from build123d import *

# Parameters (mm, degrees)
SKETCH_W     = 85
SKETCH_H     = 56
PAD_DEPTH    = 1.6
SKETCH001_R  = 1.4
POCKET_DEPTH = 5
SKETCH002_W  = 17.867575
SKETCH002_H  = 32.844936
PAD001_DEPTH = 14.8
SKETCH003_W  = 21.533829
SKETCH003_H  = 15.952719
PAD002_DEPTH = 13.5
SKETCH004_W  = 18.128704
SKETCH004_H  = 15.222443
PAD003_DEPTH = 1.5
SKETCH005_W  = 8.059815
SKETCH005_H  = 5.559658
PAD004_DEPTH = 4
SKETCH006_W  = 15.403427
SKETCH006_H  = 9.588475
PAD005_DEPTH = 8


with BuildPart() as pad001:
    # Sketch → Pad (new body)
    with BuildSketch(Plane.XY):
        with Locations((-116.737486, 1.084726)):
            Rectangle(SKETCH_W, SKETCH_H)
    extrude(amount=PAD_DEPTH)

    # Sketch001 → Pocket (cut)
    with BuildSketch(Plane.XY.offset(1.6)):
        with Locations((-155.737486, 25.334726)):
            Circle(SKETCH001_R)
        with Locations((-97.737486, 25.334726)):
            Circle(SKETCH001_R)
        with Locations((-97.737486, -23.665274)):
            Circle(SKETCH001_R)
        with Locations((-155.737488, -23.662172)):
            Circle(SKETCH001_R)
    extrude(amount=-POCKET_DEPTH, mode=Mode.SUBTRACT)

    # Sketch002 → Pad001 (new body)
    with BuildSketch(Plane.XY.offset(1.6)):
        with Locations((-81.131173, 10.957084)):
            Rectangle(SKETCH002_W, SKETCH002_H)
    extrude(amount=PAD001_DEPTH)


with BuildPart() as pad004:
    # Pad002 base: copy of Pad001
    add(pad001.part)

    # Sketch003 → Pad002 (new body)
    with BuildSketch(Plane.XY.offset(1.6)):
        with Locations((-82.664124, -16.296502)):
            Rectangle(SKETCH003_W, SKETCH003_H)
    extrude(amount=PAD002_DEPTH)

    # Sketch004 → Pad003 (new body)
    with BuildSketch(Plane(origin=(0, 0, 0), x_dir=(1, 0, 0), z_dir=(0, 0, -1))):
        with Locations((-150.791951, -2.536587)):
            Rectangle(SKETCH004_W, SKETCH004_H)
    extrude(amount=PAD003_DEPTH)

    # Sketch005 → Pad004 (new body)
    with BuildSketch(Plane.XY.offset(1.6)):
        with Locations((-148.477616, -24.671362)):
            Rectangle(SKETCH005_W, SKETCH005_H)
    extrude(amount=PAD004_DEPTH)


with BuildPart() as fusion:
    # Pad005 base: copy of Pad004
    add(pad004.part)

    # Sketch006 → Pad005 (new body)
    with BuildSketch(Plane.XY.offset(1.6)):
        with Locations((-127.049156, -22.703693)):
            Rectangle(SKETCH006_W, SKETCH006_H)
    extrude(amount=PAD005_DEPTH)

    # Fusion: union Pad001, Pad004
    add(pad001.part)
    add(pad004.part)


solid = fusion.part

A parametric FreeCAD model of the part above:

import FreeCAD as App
import Part
import Sketcher


def add_polygon(sketch, points):
    """Adds a closed chain of lines whose ends are joined by coincident constraints."""
    first, n = sketch.GeometryCount, len(points)
    for a, b in zip(points, points[1:] + points[:1]):
        sketch.addGeometry(Part.LineSegment(App.Vector(*a, 0), App.Vector(*b, 0)), False)
    for i in range(n):
        sketch.addConstraint(Sketcher.Constraint("Coincident", first + i, 2, first + (i + 1) % n, 1))

doc = App.newDocument("Part")
body = doc.addObject("PartDesign::Body", "Body")

# Sketch on XY plane
sketch1 = body.newObject("Sketcher::SketchObject", "Sketch")
sketch1.AttachmentSupport = (doc.getObject("XY_Plane"), [""])
sketch1.MapMode = "FlatFace"
add_polygon(sketch1, [(-159, 29), (-159, -27), (-74, -27), (-74, 29)])  # lines 0-3
sketch1.addConstraint([
    Sketcher.Constraint("Vertical", 0),
    Sketcher.Constraint("Horizontal", 1),
    Sketcher.Constraint("Vertical", 2),
    Sketcher.Constraint("Horizontal", 3),
    Sketcher.Constraint("DistanceX", 1, 1, 1, 2, 85.0),
    Sketcher.Constraint("DistanceY", 0, 2, 0, 1, 56.0),
    Sketcher.Constraint("DistanceX", 0, 2, -1, 1, 159.237486),
    Sketcher.Constraint("DistanceY", 0, 2, -1, 1, 26.915274),
])
pad1 = body.newObject("PartDesign::Pad", "Pad")
pad1.Profile = sketch1
pad1.Length = 1.6

# Sketch on XY plane
sketch2 = body.newObject("Sketcher::SketchObject", "Sketch001")
sketch2.AttachmentSupport = (doc.getObject("XY_Plane"), [""])
sketch2.MapMode = "FlatFace"
sketch2.AttachmentOffset = App.Placement(App.Vector(0, 0, 1.6), App.Rotation())
sketch2.addGeometry([
    Part.Circle(App.Vector(-155.7, 25.3, 0), App.Vector(0, 0, 1), 1.4),
    Part.Circle(App.Vector(-97.7, 25.3, 0), App.Vector(0, 0, 1), 1.4),
    Part.Circle(App.Vector(-97.7, -23.7, 0), App.Vector(0, 0, 1), 1.4),
    Part.Circle(App.Vector(-155.7, -23.7, 0), App.Vector(0, 0, 1), 1.4),
], False)
sketch2.addConstraint([
    Sketcher.Constraint("Equal", 0, 1),
    Sketcher.Constraint("Equal", 1, 2),
    Sketcher.Constraint("Equal", 2, 3),
    Sketcher.Constraint("Horizontal", 0, 3, 1, 3),
    Sketcher.Constraint("Vertical", 1, 3, 2, 3),
    Sketcher.Constraint("Diameter", 0, 2.8),
    Sketcher.Constraint("DistanceX", 0, 3, 1, 3, 58.0),
    Sketcher.Constraint("DistanceY", 2, 3, 1, 3, 49.0),
    Sketcher.Constraint("DistanceY", 3, 3, 0, 3, 48.996898),
    Sketcher.Constraint("DistanceX", 3, 3, -1, 1, 155.737488),
    Sketcher.Constraint("DistanceX", 0, 3, -1, 1, 155.737486),
    Sketcher.Constraint("DistanceY", -1, 1, 0, 3, 25.334726),
])
pocket1 = body.newObject("PartDesign::Pocket", "Pocket")
pocket1.Profile = sketch2
pocket1.Length = 5

# Sketch on XY plane
sketch3 = body.newObject("Sketcher::SketchObject", "Sketch002")
sketch3.AttachmentSupport = (doc.getObject("XY_Plane"), [""])
sketch3.MapMode = "FlatFace"
sketch3.AttachmentOffset = App.Placement(App.Vector(0, 0, 1.6), App.Rotation())
add_polygon(sketch3, [(-90, 27), (-90, -5), (-72, -5), (-72, 27)])  # lines 0-3
sketch3.addConstraint([
    Sketcher.Constraint("Vertical", 0),
    Sketcher.Constraint("Horizontal", 1),
    Sketcher.Constraint("Vertical", 2),
    Sketcher.Constraint("Horizontal", 3),
    Sketcher.Constraint("DistanceX", 1, 1, 1, 2, 17.867575),
    Sketcher.Constraint("DistanceY", 0, 2, 0, 1, 32.844936),
    Sketcher.Constraint("DistanceX", 0, 2, -1, 1, 90.06496),
    Sketcher.Constraint("DistanceY", 0, 2, -1, 1, 5.465384),
])
pad2 = body.newObject("PartDesign::Pad", "Pad001")
pad2.Profile = sketch3
pad2.Length = 14.8
body2 = doc.addObject("PartDesign::Body", "Body001")
doc.recompute()

body2.BaseFeature = body
doc.recompute()

# Sketch on XY plane
sketch4 = body2.newObject("Sketcher::SketchObject", "Sketch003")
sketch4.AttachmentSupport = (doc.getObject("XY_Plane001"), [""])
sketch4.MapMode = "FlatFace"
sketch4.AttachmentOffset = App.Placement(App.Vector(0, 0, 1.6), App.Rotation())
add_polygon(sketch4, [(-93, -8), (-93, -24), (-72, -24), (-72, -8)])  # lines 0-3
sketch4.addConstraint([
    Sketcher.Constraint("Vertical", 0),
    Sketcher.Constraint("Horizontal", 1),
    Sketcher.Constraint("Vertical", 2),
    Sketcher.Constraint("Horizontal", 3),
    Sketcher.Constraint("DistanceX", 1, 1, 1, 2, 21.533829),
    Sketcher.Constraint("DistanceY", 0, 2, 0, 1, 15.952719),
    Sketcher.Constraint("DistanceX", 0, 2, -1, 1, 93.431038),
    Sketcher.Constraint("DistanceY", 0, 2, -1, 1, 24.272862),
])
pad3 = body2.newObject("PartDesign::Pad", "Pad002")
pad3.Profile = sketch4
pad3.Length = 13.5

# Sketch on XY plane
sketch5 = body2.newObject("Sketcher::SketchObject", "Sketch004")
sketch5.AttachmentSupport = (doc.getObject("XY_Plane001"), [""])
sketch5.MapMode = "FlatFace"
add_polygon(sketch5, [(-160, -5), (-160, 10), (-142, 10), (-142, -5)])  # lines 0-3
sketch5.addConstraint([
    Sketcher.Constraint("Vertical", 0),
    Sketcher.Constraint("Horizontal", 1),
    Sketcher.Constraint("Vertical", 2),
    Sketcher.Constraint("Horizontal", 3),
    Sketcher.Constraint("DistanceX", 1, 2, -1, 1, 141.727599),
    Sketcher.Constraint("DistanceX", 1, 1, 1, 2, 18.128704),
    Sketcher.Constraint("DistanceY", 0, 1, 0, 2, 15.222443),
    Sketcher.Constraint("DistanceY", -1, 1, 0, 2, 10.147809),
])
pad4 = body2.newObject("PartDesign::Pad", "Pad003")
pad4.Profile = sketch5
pad4.Length = 1.5
pad4.Reversed = True

# Sketch on XY plane
sketch6 = body2.newObject("Sketcher::SketchObject", "Sketch005")
sketch6.AttachmentSupport = (doc.getObject("XY_Plane001"), [""])
sketch6.MapMode = "FlatFace"
sketch6.AttachmentOffset = App.Placement(App.Vector(0, 0, 1.6), App.Rotation())
add_polygon(sketch6, [(-153, -22), (-153, -27), (-144, -27), (-144, -22)])  # lines 0-3
sketch6.addConstraint([
    Sketcher.Constraint("Vertical", 0),
    Sketcher.Constraint("Horizontal", 1),
    Sketcher.Constraint("Vertical", 2),
    Sketcher.Constraint("Horizontal", 3),
    Sketcher.Constraint("DistanceY", 0, 2, 0, 1, 5.559658),
    Sketcher.Constraint("DistanceX", 1, 1, 1, 2, 8.059815),
    Sketcher.Constraint("DistanceY", 0, 2, -1, 1, 27.451191),
    Sketcher.Constraint("DistanceX", 1, 2, -1, 1, 144.447709),
])
pad5 = body2.newObject("PartDesign::Pad", "Pad004")
pad5.Profile = sketch6
pad5.Length = 4
body3 = doc.addObject("PartDesign::Body", "Body002")
doc.recompute()

body3.BaseFeature = body2
doc.recompute()

# Sketch on XY plane
sketch7 = body3.newObject("Sketcher::SketchObject", "Sketch006")
sketch7.AttachmentSupport = (doc.getObject("XY_Plane002"), [""])
sketch7.MapMode = "FlatFace"
sketch7.AttachmentOffset = App.Placement(App.Vector(0, 0, 1.6), App.Rotation())
add_polygon(sketch7, [(-135, -18), (-135, -27), (-119, -27), (-119, -18)])  # lines 0-3
sketch7.addConstraint([
    Sketcher.Constraint("Vertical", 0),
    Sketcher.Constraint("Horizontal", 1),
    Sketcher.Constraint("Vertical", 2),
    Sketcher.Constraint("Horizontal", 3),
    Sketcher.Constraint("DistanceX", 1, 1, 1, 2, 15.403427),
    Sketcher.Constraint("DistanceY", 0, 2, 0, 1, 9.588475),
    Sketcher.Constraint("DistanceX", 0, 2, -1, 1, 134.750869),
    Sketcher.Constraint("DistanceY", 0, 2, -1, 1, 27.49793),
])
pad6 = body3.newObject("PartDesign::Pad", "Pad005")
pad6.Profile = sketch7
pad6.Length = 8
doc.recompute()

boolean = body3.newObject("PartDesign::Boolean", "Boolean")
boolean.Type = "Fuse"
boolean.addObjects([body])
doc.recompute()

boolean2 = body3.newObject("PartDesign::Boolean", "Boolean001")
boolean2.Type = "Fuse"
boolean2.addObjects([body2])

doc.recompute()
